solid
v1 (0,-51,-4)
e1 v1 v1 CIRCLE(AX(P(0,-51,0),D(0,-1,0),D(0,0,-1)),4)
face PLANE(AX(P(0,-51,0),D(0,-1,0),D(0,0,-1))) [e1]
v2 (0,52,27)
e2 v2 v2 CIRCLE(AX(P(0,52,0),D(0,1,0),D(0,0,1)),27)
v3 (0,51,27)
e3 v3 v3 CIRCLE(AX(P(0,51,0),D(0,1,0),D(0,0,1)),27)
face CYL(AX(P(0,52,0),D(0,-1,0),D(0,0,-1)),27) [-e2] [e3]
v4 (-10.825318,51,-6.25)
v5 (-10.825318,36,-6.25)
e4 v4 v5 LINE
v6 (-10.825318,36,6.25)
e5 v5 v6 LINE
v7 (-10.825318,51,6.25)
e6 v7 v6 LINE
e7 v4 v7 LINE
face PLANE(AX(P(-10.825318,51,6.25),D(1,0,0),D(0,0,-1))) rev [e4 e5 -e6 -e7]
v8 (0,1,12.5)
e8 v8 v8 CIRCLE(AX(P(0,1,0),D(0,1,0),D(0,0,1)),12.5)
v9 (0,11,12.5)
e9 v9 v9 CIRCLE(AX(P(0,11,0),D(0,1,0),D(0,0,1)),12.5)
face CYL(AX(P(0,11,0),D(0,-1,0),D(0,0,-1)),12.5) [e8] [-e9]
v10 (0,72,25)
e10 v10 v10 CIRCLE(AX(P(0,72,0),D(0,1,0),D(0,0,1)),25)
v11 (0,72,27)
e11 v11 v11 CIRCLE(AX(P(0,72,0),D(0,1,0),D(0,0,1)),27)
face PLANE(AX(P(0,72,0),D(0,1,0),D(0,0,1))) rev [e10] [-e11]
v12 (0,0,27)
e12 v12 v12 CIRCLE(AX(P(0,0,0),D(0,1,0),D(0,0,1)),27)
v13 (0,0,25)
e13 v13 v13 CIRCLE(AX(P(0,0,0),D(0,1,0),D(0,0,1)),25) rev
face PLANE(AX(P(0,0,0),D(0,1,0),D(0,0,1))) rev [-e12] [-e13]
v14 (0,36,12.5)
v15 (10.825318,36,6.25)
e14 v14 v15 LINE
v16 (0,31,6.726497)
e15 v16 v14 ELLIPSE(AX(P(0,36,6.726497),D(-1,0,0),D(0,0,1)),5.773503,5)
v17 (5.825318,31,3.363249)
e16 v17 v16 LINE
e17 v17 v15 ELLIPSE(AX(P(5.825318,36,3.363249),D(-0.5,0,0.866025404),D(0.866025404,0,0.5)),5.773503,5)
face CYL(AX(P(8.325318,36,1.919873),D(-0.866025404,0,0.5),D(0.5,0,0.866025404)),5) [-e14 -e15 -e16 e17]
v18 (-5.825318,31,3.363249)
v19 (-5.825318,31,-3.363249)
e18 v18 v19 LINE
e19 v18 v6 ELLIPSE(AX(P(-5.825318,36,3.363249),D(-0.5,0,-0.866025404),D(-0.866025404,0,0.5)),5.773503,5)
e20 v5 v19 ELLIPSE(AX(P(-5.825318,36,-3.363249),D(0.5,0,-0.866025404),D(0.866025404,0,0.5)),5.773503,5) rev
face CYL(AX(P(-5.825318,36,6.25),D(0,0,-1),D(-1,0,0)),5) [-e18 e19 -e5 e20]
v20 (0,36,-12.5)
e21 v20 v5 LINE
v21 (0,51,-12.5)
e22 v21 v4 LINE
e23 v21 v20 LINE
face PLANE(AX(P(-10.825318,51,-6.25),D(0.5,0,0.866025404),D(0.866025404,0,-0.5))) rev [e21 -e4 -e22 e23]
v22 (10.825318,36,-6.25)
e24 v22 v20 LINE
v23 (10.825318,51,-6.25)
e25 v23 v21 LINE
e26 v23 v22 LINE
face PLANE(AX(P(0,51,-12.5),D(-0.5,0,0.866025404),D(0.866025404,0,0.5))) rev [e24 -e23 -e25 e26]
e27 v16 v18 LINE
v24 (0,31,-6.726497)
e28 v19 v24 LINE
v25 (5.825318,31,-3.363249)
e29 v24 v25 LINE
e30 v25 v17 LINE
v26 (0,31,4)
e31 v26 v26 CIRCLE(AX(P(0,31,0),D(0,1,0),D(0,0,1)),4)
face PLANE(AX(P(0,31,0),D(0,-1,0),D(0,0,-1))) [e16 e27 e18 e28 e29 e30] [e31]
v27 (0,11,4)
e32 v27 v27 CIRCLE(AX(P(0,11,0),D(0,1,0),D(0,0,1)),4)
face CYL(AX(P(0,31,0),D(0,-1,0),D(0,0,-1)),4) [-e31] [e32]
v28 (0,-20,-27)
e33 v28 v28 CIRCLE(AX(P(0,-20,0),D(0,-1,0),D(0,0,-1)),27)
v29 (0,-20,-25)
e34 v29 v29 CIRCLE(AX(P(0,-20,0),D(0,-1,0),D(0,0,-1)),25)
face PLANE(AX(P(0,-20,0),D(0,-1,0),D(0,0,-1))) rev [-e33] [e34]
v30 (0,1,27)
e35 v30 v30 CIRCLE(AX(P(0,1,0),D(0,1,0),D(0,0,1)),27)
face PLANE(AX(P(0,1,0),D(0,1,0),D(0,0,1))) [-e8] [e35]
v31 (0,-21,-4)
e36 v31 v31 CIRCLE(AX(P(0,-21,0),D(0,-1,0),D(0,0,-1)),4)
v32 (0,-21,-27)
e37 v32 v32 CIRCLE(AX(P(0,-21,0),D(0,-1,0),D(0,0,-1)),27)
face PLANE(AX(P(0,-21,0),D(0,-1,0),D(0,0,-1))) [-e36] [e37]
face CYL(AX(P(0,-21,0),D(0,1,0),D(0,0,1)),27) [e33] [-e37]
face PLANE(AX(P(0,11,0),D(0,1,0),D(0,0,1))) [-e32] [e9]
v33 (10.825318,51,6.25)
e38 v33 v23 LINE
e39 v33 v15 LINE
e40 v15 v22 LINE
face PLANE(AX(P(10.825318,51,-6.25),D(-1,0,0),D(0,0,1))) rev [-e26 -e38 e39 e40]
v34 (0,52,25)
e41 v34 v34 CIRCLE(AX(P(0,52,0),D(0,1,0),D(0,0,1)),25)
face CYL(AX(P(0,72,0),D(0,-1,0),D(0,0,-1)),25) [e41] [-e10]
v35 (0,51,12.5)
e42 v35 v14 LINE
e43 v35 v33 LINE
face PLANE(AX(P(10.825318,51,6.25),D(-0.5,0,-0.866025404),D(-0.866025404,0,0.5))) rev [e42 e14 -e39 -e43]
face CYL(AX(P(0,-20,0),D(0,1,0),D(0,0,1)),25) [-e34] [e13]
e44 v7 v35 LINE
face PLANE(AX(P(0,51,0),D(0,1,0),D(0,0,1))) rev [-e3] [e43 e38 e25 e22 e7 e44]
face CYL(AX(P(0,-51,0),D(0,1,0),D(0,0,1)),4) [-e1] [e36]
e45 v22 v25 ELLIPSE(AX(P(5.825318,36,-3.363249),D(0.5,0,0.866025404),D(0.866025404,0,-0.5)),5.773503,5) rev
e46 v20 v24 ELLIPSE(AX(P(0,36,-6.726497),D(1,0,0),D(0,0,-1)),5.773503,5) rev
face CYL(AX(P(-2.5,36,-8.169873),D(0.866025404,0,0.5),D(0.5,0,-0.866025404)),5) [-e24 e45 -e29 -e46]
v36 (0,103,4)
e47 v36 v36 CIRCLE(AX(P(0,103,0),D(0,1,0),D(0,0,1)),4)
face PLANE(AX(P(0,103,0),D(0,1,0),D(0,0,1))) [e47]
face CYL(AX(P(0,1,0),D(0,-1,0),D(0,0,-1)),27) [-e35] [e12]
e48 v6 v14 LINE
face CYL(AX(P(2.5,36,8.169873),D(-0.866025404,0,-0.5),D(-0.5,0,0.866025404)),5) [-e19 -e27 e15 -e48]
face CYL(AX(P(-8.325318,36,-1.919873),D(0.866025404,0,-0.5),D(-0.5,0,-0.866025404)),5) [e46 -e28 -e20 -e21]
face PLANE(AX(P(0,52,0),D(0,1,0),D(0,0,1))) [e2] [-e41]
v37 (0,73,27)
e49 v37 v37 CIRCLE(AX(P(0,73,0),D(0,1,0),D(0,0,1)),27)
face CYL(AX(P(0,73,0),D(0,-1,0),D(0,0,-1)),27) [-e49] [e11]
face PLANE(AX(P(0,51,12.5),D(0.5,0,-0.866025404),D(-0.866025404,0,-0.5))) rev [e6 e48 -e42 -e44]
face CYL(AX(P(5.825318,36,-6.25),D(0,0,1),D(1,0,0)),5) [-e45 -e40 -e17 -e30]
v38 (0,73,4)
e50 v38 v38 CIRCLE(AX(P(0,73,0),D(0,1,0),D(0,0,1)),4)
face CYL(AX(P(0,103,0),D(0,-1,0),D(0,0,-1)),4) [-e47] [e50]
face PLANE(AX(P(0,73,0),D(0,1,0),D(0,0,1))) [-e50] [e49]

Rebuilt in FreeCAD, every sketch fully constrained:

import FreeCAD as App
import Part
import Sketcher
from FreeCAD import Vector
Q = App.Units.Quantity


def edges_at(feature, points):
    """Names of the edges that pass closest to the given points."""
    edges = feature.Shape.Edges
    near = lambda p: min(range(len(edges)), key=lambda i: edges[i].distToShape(Part.Vertex(*p))[0])
    return sorted({f"Edge{near(p) + 1}" for p in points})

doc = App.newDocument("Part")
body = doc.addObject("PartDesign::Body", "Body")

sketch1 = body.newObject("Sketcher::SketchObject", "Sketch")
sketch1.AttachmentSupport = (doc.getObject("XZ_Plane"), [""])
sketch1.MapMode = "FlatFace"
sketch1.addGeometry(Part.Circle(Vector(0, 0, 0), Vector(0, 0, 1), 27), False)
sketch1.addConstraint(Sketcher.Constraint("Coincident", 0, 3, -1, 1))
sketch1.addConstraint(Sketcher.Constraint("Diameter", 0, 54.0))
pad1 = body.newObject("PartDesign::Pad", "Pad")
pad1.Profile = sketch1
pad1.Length = 1
pad1.Reversed = True

sketch2 = body.newObject("Sketcher::SketchObject", "Sketch001")
sketch2.AttachmentSupport = (doc.getObject("XZ_Plane"), [""])
sketch2.MapMode = "FlatFace"
sketch2.AttachmentOffset = App.Placement(Vector(0, 0, -1), App.Rotation())
sketch2.addGeometry(Part.Circle(Vector(0, 0, 0), Vector(0, 0, 1), 12), False)
sketch2.addConstraint(Sketcher.Constraint("Coincident", 0, 3, -1, 1))
sketch2.addConstraint(Sketcher.Constraint("Diameter", 0, 25.0))
pad2 = body.newObject("PartDesign::Pad", "Pad001")
pad2.Profile = sketch2
pad2.Length = 10
pad2.Reversed = True

sketch3 = body.newObject("Sketcher::SketchObject", "Sketch002")
sketch3.AttachmentSupport = (doc.getObject("XZ_Plane"), [""])
sketch3.MapMode = "FlatFace"
sketch3.AttachmentOffset = App.Placement(Vector(0, 0, -11), App.Rotation())
sketch3.addGeometry(Part.Circle(Vector(0, 0, 0), Vector(0, 0, 1), 4), False)
sketch3.addConstraint(Sketcher.Constraint("Coincident", 0, 3, -1, 1))
sketch3.addConstraint(Sketcher.Constraint("Diameter", 0, 8.0))
pad3 = body.newObject("PartDesign::Pad", "Pad002")
pad3.Profile = sketch3
pad3.Length = 20
pad3.Reversed = True

sketch4 = body.newObject("Sketcher::SketchObject", "Sketch003")
sketch4.AttachmentSupport = (doc.getObject("XZ_Plane"), [""])
sketch4.MapMode = "FlatFace"
sketch4.AttachmentOffset = App.Placement(Vector(0, 0, -31), App.Rotation())
sketch4.addGeometry(Part.LineSegment(Vector(11, -6, 0), Vector(0, -12, 0)), False)
sketch4.addGeometry(Part.LineSegment(Vector(0, -12, 0), Vector(-11, -6, 0)), False)
sketch4.addGeometry(Part.LineSegment(Vector(-11, -6, 0), Vector(-11, 6, 0)), False)
sketch4.addGeometry(Part.LineSegment(Vector(-11, 6, 0), Vector(0, 12, 0)), False)
sketch4.addGeometry(Part.LineSegment(Vector(0, 12, 0), Vector(11, 6, 0)), False)
sketch4.addGeometry(Part.LineSegment(Vector(11, 6, 0), Vector(11, -6, 0)), False)
sketch4.addConstraint(Sketcher.Constraint("Coincident", 0, 2, 1, 1))
sketch4.addConstraint(Sketcher.Constraint("Coincident", 1, 2, 2, 1))
sketch4.addConstraint(Sketcher.Constraint("Coincident", 2, 2, 3, 1))
sketch4.addConstraint(Sketcher.Constraint("Coincident", 3, 2, 4, 1))
sketch4.addConstraint(Sketcher.Constraint("Coincident", 4, 2, 5, 1))
sketch4.addConstraint(Sketcher.Constraint("Coincident", 5, 2, 0, 1))
sketch4.addConstraint(Sketcher.Constraint("Vertical", 2))
sketch4.addConstraint(Sketcher.Constraint("Vertical", 5))
sketch4.addConstraint(Sketcher.Constraint("Symmetric", 0, 2, 3, 2, -1, 1))
sketch4.addConstraint(Sketcher.Constraint("Symmetric", 1, 2, 4, 2, -1, 1))
sketch4.addConstraint(Sketcher.Constraint("PointOnObject", 0, 2, -2))
sketch4.addConstraint(Sketcher.Constraint("Parallel", 0, 3))
sketch4.addConstraint(Sketcher.Constraint("Horizontal", 2, 2, 4, 2))
sketch4.addConstraint(Sketcher.Constraint("Angle", 0, Q("-150 deg")))
sketch4.addConstraint(Sketcher.Constraint("DistanceY", 2, 1, 2, 2, 12.5))
sketch4.addConstraint(Sketcher.Constraint("DistanceY", 0, 2, 3, 2, 25.0))
pad4 = body.newObject("PartDesign::Pad", "Pad003")
pad4.Profile = sketch4
pad4.Length = 20
pad4.Reversed = True
doc.recompute()

fillet = body.newObject("PartDesign::Fillet", "Fillet")
fillet.Base = (pad4, edges_at(pad4, [
    (-5.413, 31, -9.375),
    (-10.825, 31, 0),
    (-5.413, 31, 9.375),
    (5.413, 31, 9.375),
    (10.825, 31, 0),
    (5.413, 31, -9.375),
]))
fillet.Radius = 5

sketch5 = body.newObject("Sketcher::SketchObject", "Sketch004")
sketch5.AttachmentSupport = (doc.getObject("XZ_Plane"), [""])
sketch5.MapMode = "FlatFace"
sketch5.AttachmentOffset = App.Placement(Vector(0, 0, -51), App.Rotation())
sketch5.addGeometry(Part.Circle(Vector(0, 0, 0), Vector(0, 0, 1), 27), False)
sketch5.addConstraint(Sketcher.Constraint("Coincident", 0, 3, -1, 1))
sketch5.addConstraint(Sketcher.Constraint("Diameter", 0, 54.0))
pad5 = body.newObject("PartDesign::Pad", "Pad004")
pad5.Profile = sketch5
pad5.Length = 1
pad5.Reversed = True

sketch6 = body.newObject("Sketcher::SketchObject", "Sketch005")
sketch6.AttachmentSupport = (doc.getObject("XZ_Plane"), [""])
sketch6.MapMode = "FlatFace"
sketch6.AttachmentOffset = App.Placement(Vector(0, 0, -52), App.Rotation())
sketch6.addGeometry(Part.Circle(Vector(0, 0, 0), Vector(0, 0, 1), 25), False)
sketch6.addConstraint(Sketcher.Constraint("Coincident", 0, 3, -1, 1))
sketch6.addConstraint(Sketcher.Constraint("Diameter", 0, 50.0))
pad6 = body.newObject("PartDesign::Pad", "Pad005")
pad6.Profile = sketch6
pad6.Length = 20
pad6.Reversed = True

sketch7 = body.newObject("Sketcher::SketchObject", "Sketch006")
sketch7.AttachmentSupport = (doc.getObject("XZ_Plane"), [""])
sketch7.MapMode = "FlatFace"
sketch7.AttachmentOffset = App.Placement(Vector(0, 0, -72), App.Rotation())
sketch7.addGeometry(Part.Circle(Vector(0, 0, 0), Vector(0, 0, 1), 27), False)
sketch7.addConstraint(Sketcher.Constraint("Coincident", 0, 3, -1, 1))
sketch7.addConstraint(Sketcher.Constraint("Diameter", 0, 54.0))
pad7 = body.newObject("PartDesign::Pad", "Pad006")
pad7.Profile = sketch7
pad7.Length = 1
pad7.Reversed = True

sketch8 = body.newObject("Sketcher::SketchObject", "Sketch007")
sketch8.AttachmentSupport = (doc.getObject("XZ_Plane"), [""])
sketch8.MapMode = "FlatFace"
sketch8.AttachmentOffset = App.Placement(Vector(0, 0, -73), App.Rotation())
sketch8.addGeometry(Part.Circle(Vector(0, 0, 0), Vector(0, 0, 1), 4), False)
sketch8.addConstraint(Sketcher.Constraint("Coincident", 0, 3, -1, 1))
sketch8.addConstraint(Sketcher.Constraint("Diameter", 0, 8.0))
pad8 = body.newObject("PartDesign::Pad", "Pad007")
pad8.Profile = sketch8
pad8.Length = 30
pad8.Reversed = True

sketch9 = body.newObject("Sketcher::SketchObject", "Sketch008")
sketch9.AttachmentSupport = (doc.getObject("XZ_Plane"), [""])
sketch9.MapMode = "FlatFace"
sketch9.addGeometry(Part.Circle(Vector(0, 0, 0), Vector(0, 0, 1), 25), False)
sketch9.addConstraint(Sketcher.Constraint("Coincident", 0, 3, -1, 1))
sketch9.addConstraint(Sketcher.Constraint("Diameter", 0, 50.0))
pad9 = body.newObject("PartDesign::Pad", "Pad008")
pad9.Profile = sketch9
pad9.Length = 20

sketch10 = body.newObject("Sketcher::SketchObject", "Sketch009")
sketch10.AttachmentSupport = (doc.getObject("XZ_Plane"), [""])
sketch10.MapMode = "FlatFace"
sketch10.AttachmentOffset = App.Placement(Vector(0, 0, 20), App.Rotation())
sketch10.addGeometry(Part.Circle(Vector(0, 0, 0), Vector(0, 0, 1), 27), False)
sketch10.addConstraint(Sketcher.Constraint("Coincident", 0, 3, -1, 1))
sketch10.addConstraint(Sketcher.Constraint("Diameter", 0, 54.0))
pad10 = body.newObject("PartDesign::Pad", "Pad009")
pad10.Profile = sketch10
pad10.Length = 1

sketch11 = body.newObject("Sketcher::SketchObject", "Sketch010")
sketch11.AttachmentSupport = (doc.getObject("XZ_Plane"), [""])
sketch11.MapMode = "FlatFace"
sketch11.AttachmentOffset = App.Placement(Vector(0, 0, 21), App.Rotation())
sketch11.addGeometry(Part.Circle(Vector(0, 0, 0), Vector(0, 0, 1), 4), False)
sketch11.addConstraint(Sketcher.Constraint("Coincident", 0, 3, -1, 1))
sketch11.addConstraint(Sketcher.Constraint("Diameter", 0, 8.0))
pad11 = body.newObject("PartDesign::Pad", "Pad010")
pad11.Profile = sketch11
pad11.Length = 30

doc.recompute()
